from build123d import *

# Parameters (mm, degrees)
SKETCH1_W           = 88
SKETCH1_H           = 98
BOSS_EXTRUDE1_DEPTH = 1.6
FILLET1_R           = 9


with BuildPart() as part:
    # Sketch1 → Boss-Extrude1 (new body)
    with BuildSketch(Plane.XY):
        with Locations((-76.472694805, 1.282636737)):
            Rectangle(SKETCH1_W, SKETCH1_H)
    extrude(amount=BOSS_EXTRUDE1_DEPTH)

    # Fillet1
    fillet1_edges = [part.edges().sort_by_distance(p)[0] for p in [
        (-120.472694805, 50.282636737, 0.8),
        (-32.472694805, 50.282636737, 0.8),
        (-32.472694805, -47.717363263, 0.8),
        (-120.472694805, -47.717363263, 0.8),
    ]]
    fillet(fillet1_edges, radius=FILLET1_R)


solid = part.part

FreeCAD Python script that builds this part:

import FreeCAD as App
import Part
import Sketcher

V = App.Vector


def edges_at(feature, points):
    """Names of the edges that pass closest to the given points."""
    edges = feature.Shape.Edges
    near = lambda p: min(range(len(edges)), key=lambda i: edges[i].distToShape(Part.Vertex(*p))[0])
    return sorted({f"Edge{near(p) + 1}" for p in points})

doc = App.newDocument("Part")
body = doc.addObject("PartDesign::Body", "Body")

# Sketch on XY plane
sketch1 = body.newObject("Sketcher::SketchObject", "Sketch")
sketch1.AttachmentSupport = (doc.getObject("XY_Plane"), [""])
sketch1.MapMode = "FlatFace"
sketch1.addGeometry([
    Part.LineSegment(V(-120, 50, 0), V(-120, -48, 0)),
    Part.LineSegment(V(-120, -48, 0), V(-32, -48, 0)),
    Part.LineSegment(V(-32, -48, 0), V(-32, 50, 0)),
    Part.LineSegment(V(-32, 50, 0), V(-120, 50, 0)),
], False)
sketch1.addConstraint([
    Sketcher.Constraint("Coincident", 0, 2, 1, 1),
    Sketcher.Constraint("Coincident", 1, 2, 2, 1),
    Sketcher.Constraint("Coincident", 2, 2, 3, 1),
    Sketcher.Constraint("Coincident", 3, 2, 0, 1),
    Sketcher.Constraint("Vertical", 0),
    Sketcher.Constraint("Horizontal", 1),
    Sketcher.Constraint("Vertical", 2),
    Sketcher.Constraint("Horizontal", 3),
    Sketcher.Constraint("DistanceX", 1, 1, 1, 2, 88.0),
    Sketcher.Constraint("DistanceY", 0, 2, 0, 1, 98.0),
    Sketcher.Constraint("DistanceX", 0, 2, -1, 1, 120.472695),
    Sketcher.Constraint("DistanceY", 0, 2, -1, 1, 47.717363),
])
pad1 = body.newObject("PartDesign::Pad", "Pad")
pad1.Profile = sketch1
pad1.Length = 1.6
doc.recompute()

fillet = body.newObject("PartDesign::Fillet", "Fillet")
fillet.Base = (pad1, edges_at(pad1, [
    (-120.473, 50.283, 0.8),
    (-32.473, 50.283, 0.8),
    (-32.473, -47.717, 0.8),
    (-120.473, -47.717, 0.8),
]))
fillet.Radius = 9

doc.recompute()
